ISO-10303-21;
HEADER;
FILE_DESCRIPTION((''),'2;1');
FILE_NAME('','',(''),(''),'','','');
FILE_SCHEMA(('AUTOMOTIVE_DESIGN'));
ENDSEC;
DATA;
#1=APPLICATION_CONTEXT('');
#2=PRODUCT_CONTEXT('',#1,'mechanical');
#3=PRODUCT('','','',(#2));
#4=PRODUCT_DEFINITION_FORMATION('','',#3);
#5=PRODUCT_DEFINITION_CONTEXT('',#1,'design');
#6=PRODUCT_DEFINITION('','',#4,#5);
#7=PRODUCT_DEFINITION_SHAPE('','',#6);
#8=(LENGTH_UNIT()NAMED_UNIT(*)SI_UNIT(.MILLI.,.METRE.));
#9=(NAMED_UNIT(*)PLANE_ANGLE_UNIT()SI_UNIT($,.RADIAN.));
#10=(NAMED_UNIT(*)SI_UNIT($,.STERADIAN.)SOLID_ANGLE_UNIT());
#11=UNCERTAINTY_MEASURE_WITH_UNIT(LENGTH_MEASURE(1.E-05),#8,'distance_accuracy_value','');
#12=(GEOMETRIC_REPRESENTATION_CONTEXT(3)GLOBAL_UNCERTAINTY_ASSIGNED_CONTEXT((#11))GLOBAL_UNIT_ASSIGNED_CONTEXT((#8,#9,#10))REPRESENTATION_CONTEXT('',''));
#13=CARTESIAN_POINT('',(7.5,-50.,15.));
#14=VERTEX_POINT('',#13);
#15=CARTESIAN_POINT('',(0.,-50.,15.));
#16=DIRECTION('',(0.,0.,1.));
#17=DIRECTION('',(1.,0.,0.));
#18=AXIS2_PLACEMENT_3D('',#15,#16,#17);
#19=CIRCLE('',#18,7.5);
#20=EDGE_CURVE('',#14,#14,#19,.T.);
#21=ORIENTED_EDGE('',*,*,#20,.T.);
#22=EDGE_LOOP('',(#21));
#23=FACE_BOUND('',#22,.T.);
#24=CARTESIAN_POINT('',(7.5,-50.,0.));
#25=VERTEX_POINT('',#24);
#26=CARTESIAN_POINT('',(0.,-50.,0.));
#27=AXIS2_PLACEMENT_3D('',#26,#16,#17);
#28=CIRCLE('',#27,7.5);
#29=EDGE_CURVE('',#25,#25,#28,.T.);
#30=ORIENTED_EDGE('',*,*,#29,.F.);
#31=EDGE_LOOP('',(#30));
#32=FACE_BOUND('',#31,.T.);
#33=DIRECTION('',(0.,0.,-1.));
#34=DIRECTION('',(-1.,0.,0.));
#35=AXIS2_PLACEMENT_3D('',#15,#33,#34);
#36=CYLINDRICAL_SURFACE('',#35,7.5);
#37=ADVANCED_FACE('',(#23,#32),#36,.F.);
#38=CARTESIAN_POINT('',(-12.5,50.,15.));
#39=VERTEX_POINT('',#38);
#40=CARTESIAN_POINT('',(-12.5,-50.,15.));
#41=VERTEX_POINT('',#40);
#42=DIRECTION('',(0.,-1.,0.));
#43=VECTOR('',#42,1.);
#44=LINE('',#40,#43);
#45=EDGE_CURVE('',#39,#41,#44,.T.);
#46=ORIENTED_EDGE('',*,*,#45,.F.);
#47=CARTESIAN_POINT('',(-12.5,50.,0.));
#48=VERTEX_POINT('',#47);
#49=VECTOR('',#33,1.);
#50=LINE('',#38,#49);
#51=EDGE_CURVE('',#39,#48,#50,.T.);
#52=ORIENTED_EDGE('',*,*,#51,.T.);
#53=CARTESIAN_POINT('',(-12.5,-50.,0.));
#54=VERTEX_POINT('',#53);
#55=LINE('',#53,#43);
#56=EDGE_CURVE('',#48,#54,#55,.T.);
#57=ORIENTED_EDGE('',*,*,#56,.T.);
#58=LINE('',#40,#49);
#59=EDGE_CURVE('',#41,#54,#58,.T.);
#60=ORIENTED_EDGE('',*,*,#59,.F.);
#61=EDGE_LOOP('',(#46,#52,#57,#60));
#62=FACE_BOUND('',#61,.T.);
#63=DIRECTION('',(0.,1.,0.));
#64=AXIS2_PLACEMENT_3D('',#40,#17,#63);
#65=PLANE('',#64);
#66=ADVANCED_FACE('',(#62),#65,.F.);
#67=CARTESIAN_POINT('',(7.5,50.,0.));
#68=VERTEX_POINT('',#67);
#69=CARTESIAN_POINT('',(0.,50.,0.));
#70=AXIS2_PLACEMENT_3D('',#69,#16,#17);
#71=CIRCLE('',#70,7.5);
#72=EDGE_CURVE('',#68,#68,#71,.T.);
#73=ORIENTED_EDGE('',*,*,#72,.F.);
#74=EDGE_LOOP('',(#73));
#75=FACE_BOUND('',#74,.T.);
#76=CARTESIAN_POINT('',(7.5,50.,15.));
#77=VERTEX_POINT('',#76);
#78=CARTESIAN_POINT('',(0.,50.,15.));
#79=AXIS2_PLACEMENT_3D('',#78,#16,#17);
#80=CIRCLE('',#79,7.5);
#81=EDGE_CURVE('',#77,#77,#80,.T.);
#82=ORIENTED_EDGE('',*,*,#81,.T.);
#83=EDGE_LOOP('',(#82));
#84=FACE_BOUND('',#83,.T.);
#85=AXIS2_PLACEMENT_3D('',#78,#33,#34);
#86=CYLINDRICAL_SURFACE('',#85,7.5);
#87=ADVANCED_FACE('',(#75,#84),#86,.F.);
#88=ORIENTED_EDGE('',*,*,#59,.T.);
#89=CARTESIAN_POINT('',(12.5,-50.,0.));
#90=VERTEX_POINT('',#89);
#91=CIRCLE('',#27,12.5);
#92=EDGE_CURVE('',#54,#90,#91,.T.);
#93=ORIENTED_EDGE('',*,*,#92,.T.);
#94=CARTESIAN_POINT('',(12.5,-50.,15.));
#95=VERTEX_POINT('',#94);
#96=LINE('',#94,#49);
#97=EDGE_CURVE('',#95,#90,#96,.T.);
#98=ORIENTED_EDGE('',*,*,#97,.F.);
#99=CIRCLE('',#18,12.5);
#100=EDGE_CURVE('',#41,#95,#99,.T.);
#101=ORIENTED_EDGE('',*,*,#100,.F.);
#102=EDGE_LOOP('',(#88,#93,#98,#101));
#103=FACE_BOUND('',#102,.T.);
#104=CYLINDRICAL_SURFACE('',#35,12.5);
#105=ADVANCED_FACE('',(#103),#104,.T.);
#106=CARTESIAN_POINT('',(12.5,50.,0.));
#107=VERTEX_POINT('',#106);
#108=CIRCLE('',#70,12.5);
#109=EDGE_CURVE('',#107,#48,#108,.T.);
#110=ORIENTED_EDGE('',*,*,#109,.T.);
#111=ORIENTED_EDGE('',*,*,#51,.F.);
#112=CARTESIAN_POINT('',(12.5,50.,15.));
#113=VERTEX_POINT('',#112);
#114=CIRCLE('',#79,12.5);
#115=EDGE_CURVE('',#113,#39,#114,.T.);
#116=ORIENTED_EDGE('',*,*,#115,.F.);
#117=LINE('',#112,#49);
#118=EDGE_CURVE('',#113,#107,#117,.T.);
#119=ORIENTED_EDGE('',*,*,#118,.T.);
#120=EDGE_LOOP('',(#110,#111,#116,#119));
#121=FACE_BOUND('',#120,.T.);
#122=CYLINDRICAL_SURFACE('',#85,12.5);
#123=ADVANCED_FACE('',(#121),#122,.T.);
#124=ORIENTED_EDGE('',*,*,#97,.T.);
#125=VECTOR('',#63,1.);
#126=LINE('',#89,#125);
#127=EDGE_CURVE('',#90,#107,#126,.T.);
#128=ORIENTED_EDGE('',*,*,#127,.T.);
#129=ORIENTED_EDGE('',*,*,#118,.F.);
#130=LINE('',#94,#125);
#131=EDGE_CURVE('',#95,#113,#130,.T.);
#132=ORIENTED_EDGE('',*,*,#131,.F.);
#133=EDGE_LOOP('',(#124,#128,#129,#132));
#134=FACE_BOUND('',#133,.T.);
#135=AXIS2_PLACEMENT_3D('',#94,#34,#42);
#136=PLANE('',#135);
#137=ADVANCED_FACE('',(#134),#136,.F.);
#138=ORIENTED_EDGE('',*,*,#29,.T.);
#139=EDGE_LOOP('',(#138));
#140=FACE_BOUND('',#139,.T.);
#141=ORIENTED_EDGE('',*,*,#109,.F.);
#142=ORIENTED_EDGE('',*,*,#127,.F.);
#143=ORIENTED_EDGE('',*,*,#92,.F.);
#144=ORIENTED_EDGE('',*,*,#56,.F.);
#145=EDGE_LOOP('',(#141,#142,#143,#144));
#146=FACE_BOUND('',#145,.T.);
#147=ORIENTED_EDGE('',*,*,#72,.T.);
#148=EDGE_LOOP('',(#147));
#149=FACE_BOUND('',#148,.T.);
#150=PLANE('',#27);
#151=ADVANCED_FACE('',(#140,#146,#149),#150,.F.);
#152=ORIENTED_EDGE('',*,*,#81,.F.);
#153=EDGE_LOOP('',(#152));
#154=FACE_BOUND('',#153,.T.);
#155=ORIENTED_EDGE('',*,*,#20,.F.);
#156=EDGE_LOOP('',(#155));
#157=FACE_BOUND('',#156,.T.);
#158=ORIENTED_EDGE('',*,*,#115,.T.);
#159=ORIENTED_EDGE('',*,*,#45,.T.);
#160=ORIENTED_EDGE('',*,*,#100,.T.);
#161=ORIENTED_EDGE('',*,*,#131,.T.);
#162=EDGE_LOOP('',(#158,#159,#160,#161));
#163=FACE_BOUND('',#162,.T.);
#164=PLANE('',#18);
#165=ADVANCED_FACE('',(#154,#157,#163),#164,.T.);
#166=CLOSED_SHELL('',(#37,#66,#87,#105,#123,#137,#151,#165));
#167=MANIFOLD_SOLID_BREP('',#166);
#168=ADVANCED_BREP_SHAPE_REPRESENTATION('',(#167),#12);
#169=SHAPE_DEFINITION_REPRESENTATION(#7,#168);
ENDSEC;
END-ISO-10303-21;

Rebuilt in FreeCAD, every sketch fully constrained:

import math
import FreeCAD as App
import Part
import Sketcher

V = App.Vector
Q = App.Units.Quantity

doc = App.newDocument("Part")
body = doc.addObject("PartDesign::Body", "Body")

sketch1 = body.newObject("Sketcher::SketchObject", "Sketch")
sketch1.AttachmentSupport = (doc.getObject("XY_Plane"), [""])
sketch1.MapMode = "FlatFace"
sketch1.addGeometry([
    Part.LineSegment(V(-12, 50, 0), V(-12, -50, 0)),
    Part.ArcOfCircle(Part.Circle(V(0, -50, 0), V(0, 0, 1), 12), math.radians(180), math.radians(360)),
    Part.LineSegment(V(12, -50, 0), V(12, 50, 0)),
    Part.ArcOfCircle(Part.Circle(V(0, 50, 0), V(0, 0, 1), 12), math.radians(0), math.radians(180)),
    Part.Circle(V(0, -50, 0), V(0, 0, 1), 8),
    Part.Circle(V(0, 50, 0), V(0, 0, 1), 8),
], False)
sketch1.addConstraint([
    Sketcher.Constraint("Tangent", 0, 2, 1, 1),
    Sketcher.Constraint("Tangent", 1, 2, 2, 1),
    Sketcher.Constraint("Tangent", 2, 2, 3, 1),
    Sketcher.Constraint("Tangent", 3, 2, 0, 1),
    Sketcher.Constraint("Vertical", 0),
    Sketcher.Constraint("Vertical", 2),
    Sketcher.Constraint("Coincident", 4, 3, 1, 3),
    Sketcher.Constraint("Coincident", 5, 3, 3, 3),
    Sketcher.Constraint("Equal", 4, 5),
    Sketcher.Constraint("Symmetric", 1, 3, 3, 3, -1, 1),
    Sketcher.Constraint("Diameter", 4, Q("15 mm")),
    Sketcher.Constraint("Radius", 1, Q("12.5 mm")),
    Sketcher.Constraint("DistanceY", 0, 2, 0, 1, Q("100 mm")),
])
pad1 = body.newObject("PartDesign::Pad", "Pad")
pad1.Profile = sketch1
pad1.Length = 15

doc.recompute()
